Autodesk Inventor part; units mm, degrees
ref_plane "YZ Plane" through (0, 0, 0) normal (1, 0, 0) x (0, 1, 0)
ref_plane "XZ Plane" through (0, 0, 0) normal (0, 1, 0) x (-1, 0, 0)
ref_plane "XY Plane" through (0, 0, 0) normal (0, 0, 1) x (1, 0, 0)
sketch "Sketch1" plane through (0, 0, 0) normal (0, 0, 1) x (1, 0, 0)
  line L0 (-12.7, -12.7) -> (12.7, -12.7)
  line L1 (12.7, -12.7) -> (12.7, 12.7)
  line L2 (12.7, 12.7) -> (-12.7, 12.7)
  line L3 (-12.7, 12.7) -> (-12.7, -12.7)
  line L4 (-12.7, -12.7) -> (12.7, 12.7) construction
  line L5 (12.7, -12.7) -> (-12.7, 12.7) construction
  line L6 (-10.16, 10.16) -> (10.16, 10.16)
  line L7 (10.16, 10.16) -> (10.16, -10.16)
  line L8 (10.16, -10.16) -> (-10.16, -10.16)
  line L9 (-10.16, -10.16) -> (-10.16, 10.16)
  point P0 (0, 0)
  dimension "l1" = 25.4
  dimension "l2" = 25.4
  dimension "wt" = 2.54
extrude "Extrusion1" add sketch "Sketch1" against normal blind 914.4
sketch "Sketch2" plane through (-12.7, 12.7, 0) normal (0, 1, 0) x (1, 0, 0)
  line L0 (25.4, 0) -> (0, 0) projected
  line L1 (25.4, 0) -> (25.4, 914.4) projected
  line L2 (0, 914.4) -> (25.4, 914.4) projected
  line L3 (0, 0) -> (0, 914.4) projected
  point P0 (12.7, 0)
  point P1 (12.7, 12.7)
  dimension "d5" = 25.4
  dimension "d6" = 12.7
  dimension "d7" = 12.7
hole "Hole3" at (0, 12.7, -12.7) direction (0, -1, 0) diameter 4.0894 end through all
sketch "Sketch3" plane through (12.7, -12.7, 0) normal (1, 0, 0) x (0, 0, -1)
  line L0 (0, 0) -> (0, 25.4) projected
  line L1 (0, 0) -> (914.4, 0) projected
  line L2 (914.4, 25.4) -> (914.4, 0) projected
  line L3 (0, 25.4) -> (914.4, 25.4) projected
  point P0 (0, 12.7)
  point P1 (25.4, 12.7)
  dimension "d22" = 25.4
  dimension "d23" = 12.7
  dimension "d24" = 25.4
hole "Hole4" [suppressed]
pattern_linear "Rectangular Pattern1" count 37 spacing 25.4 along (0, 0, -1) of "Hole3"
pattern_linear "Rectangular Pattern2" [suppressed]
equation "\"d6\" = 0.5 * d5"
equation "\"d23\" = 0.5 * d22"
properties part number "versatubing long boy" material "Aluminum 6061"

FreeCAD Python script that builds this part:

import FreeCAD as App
import Part
import Sketcher
Q = App.Units.Quantity


def add_polygon(sketch, points):
    """Adds a closed chain of lines whose ends are joined by coincident constraints."""
    first, n = sketch.GeometryCount, len(points)
    for a, b in zip(points, points[1:] + points[:1]):
        sketch.addGeometry(Part.LineSegment(App.Vector(*a, 0), App.Vector(*b, 0)), False)
    for i in range(n):
        sketch.addConstraint(Sketcher.Constraint("Coincident", first + i, 2, first + (i + 1) % n, 1))

doc = App.newDocument("Part")
body = doc.addObject("PartDesign::Body", "Body")

# Sketch on XY plane
sketch1 = body.newObject("Sketcher::SketchObject", "Sketch")
sketch1.AttachmentSupport = (doc.getObject("XY_Plane"), [""])
sketch1.MapMode = "FlatFace"
add_polygon(sketch1, [(-13, 13), (-13, -13), (13, -13), (13, 13)])  # lines 0-3
add_polygon(sketch1, [(-10, -10), (-10, 10), (10, 10), (10, -10)])  # lines 4-7
sketch1.addConstraint([
    Sketcher.Constraint("Vertical", 0),
    Sketcher.Constraint("Horizontal", 1),
    Sketcher.Constraint("Vertical", 2),
    Sketcher.Constraint("Horizontal", 3),
    Sketcher.Constraint("Vertical", 4),
    Sketcher.Constraint("Horizontal", 5),
    Sketcher.Constraint("Vertical", 6),
    Sketcher.Constraint("Horizontal", 7),
    Sketcher.Constraint("Symmetric", 0, 2, 2, 2, -1, 1),
    Sketcher.Constraint("Symmetric", 4, 2, 6, 2, -1, 1),
    Sketcher.Constraint("Equal", 3, 0),
    Sketcher.Constraint("Equal", 7, 4),
    Sketcher.Constraint("DistanceX", 1, 1, 1, 2, Q("1 in")),
    Sketcher.Constraint("DistanceX", 3, 2, 4, 2, Q("0.1 in")),
])
pad1 = body.newObject("PartDesign::Pad", "Pad")
pad1.Profile = sketch1
pad1.Length = Q("36 in")
pad1.Reversed = True

# Sketch on XZ plane
sketch2 = body.newObject("Sketcher::SketchObject", "Sketch001")
sketch2.AttachmentSupport = (doc.getObject("XZ_Plane"), [""])
sketch2.MapMode = "FlatFace"
sketch2.AttachmentOffset = App.Placement(App.Vector(0, 0, -0.5 * 25.4), App.Rotation())
sketch2.addGeometry(Part.Circle(App.Vector(0, -12.7, 0), App.Vector(0, 0, 1), 2), False)
sketch2.addConstraint([
    Sketcher.Constraint("PointOnObject", 0, 3, -2),
    Sketcher.Constraint("Diameter", 0, Q("0.161 in")),
    Sketcher.Constraint("DistanceY", 0, 3, -1, 1, Q("0.5 in")),
])
doc.recompute()
hole = body.newObject("PartDesign::Hole", "Hole")
hole.Profile = sketch2
hole.ThreadType = "None"
hole.Diameter = Q("0.161 in")
hole.DepthType = "ThroughAll"
hole.Reversed = True
doc.recompute()

linearpattern = body.newObject("PartDesign::LinearPattern", "LinearPattern")
linearpattern.Originals = [hole]
linearpattern.Direction = (doc.getObject("Z_Axis"), [""])
linearpattern.Mode = "offset"
linearpattern.Offset = Q("1 in")
linearpattern.Occurrences = 37
linearpattern.Reversed = True
body.Tip = linearpattern

doc.recompute()
